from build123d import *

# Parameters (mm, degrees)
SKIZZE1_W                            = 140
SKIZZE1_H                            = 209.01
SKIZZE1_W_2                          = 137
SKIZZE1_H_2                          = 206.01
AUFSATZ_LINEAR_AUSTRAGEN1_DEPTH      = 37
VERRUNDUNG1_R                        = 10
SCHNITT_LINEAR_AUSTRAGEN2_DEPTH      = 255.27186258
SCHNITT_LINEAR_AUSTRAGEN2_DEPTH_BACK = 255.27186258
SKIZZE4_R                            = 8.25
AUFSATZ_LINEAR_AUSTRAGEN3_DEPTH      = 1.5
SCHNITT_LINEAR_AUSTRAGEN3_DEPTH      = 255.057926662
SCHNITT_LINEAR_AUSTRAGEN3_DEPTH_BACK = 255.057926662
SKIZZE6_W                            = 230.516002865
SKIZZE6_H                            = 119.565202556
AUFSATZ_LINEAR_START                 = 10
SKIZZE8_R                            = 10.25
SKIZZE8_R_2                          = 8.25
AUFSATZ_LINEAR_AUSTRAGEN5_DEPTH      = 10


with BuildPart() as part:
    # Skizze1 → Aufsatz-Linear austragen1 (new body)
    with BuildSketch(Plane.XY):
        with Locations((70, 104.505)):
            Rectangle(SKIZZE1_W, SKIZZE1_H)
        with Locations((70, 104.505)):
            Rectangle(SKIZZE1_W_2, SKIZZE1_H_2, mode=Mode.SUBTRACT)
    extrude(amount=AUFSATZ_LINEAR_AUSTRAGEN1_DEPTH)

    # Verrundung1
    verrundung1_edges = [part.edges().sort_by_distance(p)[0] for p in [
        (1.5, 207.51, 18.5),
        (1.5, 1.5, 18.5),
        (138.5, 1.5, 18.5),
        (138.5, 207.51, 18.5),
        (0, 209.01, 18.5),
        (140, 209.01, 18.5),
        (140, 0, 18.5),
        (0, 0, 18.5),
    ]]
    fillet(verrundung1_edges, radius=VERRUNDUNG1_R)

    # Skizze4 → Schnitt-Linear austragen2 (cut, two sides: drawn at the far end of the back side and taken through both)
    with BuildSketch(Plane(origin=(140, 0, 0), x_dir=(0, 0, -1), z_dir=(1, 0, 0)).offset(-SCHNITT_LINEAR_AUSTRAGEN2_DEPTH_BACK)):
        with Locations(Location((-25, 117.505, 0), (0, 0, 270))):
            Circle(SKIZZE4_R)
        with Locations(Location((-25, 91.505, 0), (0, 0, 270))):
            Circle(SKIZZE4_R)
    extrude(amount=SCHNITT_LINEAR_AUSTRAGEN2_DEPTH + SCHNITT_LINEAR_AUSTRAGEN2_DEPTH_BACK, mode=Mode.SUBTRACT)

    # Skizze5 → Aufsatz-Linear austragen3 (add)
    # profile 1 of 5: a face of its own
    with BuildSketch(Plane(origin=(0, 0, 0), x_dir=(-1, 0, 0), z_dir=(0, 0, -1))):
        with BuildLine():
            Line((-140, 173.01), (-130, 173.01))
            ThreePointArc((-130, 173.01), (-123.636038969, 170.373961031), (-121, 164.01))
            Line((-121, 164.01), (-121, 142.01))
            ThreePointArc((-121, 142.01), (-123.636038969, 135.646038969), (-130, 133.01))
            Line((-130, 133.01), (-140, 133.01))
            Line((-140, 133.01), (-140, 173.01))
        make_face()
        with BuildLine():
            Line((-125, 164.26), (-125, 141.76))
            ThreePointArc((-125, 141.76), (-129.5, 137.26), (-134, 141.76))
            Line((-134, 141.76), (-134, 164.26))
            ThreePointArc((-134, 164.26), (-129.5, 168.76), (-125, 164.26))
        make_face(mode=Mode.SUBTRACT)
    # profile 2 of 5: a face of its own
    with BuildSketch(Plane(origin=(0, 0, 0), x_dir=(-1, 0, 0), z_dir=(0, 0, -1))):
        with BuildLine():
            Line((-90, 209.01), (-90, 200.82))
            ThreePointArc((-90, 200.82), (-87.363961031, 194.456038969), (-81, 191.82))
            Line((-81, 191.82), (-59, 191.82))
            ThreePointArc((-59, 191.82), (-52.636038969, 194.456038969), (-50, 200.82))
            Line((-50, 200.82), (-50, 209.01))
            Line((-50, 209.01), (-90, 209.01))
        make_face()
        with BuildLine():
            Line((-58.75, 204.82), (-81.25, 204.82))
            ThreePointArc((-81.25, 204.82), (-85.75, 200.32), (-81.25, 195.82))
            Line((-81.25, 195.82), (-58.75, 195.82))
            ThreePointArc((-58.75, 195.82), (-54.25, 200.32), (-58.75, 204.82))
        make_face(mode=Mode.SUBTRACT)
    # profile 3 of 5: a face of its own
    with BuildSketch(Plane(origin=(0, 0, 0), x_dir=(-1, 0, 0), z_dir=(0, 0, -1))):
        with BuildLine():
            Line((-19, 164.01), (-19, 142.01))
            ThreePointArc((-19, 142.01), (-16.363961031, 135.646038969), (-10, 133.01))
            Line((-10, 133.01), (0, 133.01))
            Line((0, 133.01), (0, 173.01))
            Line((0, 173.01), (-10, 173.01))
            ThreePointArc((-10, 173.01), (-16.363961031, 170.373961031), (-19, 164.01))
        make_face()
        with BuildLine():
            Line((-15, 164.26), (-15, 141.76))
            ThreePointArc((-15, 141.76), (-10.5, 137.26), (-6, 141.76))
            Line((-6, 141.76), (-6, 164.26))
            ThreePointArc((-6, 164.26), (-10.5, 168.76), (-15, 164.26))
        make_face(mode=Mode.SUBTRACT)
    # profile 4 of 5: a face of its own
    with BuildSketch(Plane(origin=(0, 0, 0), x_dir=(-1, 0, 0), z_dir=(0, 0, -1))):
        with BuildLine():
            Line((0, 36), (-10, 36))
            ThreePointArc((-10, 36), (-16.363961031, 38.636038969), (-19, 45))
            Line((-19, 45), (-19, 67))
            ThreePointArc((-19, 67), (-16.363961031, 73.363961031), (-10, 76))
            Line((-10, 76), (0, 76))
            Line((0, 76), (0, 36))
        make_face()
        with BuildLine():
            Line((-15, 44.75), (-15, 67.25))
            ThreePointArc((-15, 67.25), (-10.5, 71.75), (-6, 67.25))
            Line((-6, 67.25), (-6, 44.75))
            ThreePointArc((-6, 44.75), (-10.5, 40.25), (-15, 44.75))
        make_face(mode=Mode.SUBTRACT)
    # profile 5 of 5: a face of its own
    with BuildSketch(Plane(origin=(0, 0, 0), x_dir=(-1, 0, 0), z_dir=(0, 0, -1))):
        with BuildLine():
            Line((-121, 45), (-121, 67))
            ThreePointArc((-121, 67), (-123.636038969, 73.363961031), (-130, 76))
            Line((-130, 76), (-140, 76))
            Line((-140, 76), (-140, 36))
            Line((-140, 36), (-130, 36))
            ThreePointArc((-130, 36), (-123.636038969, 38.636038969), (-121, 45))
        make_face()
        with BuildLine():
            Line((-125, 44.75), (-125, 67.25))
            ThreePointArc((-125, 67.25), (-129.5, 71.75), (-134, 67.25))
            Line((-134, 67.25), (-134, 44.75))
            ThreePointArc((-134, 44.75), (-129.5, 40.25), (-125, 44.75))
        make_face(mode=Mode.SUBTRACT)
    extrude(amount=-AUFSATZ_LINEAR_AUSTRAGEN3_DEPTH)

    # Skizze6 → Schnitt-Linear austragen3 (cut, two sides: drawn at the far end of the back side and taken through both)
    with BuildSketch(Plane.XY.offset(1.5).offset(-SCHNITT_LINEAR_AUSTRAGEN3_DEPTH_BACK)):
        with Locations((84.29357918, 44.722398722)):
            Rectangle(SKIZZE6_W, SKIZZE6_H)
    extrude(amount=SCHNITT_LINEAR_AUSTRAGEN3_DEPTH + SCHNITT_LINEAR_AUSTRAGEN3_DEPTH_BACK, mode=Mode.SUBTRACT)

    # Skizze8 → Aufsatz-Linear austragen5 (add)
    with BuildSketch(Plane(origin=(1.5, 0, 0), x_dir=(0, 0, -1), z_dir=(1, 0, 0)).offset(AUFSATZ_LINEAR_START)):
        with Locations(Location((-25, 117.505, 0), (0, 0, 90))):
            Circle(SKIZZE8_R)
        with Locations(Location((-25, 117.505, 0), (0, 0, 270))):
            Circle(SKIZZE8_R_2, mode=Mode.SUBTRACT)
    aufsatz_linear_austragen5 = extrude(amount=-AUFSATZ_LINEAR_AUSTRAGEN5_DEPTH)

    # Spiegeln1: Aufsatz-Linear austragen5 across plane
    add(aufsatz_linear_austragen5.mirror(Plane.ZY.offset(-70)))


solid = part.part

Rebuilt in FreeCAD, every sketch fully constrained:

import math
import FreeCAD as App
import Part
import Sketcher
from FreeCAD import Vector


def edges_at(feature, points):
    """Names of the edges that pass closest to the given points."""
    edges = feature.Shape.Edges
    near = lambda p: min(range(len(edges)), key=lambda i: edges[i].distToShape(Part.Vertex(*p))[0])
    return sorted({f"Edge{near(p) + 1}" for p in points})


def add_polygon(sketch, points):
    """Adds a closed chain of lines whose ends are joined by coincident constraints."""
    first, n = sketch.GeometryCount, len(points)
    for a, b in zip(points, points[1:] + points[:1]):
        sketch.addGeometry(Part.LineSegment(App.Vector(*a, 0), App.Vector(*b, 0)), False)
    for i in range(n):
        sketch.addConstraint(Sketcher.Constraint("Coincident", first + i, 2, first + (i + 1) % n, 1))

doc = App.newDocument("Part")
body = doc.addObject("PartDesign::Body", "Body")

sketch1 = body.newObject("Sketcher::SketchObject", "Sketch")
sketch1.AttachmentSupport = (doc.getObject("XY_Plane"), [""])
sketch1.MapMode = "FlatFace"
add_polygon(sketch1, [(0, 209), (0, 0), (140, 0), (140, 209)])
add_polygon(sketch1, [(138, 2), (2, 2), (2, 208), (138, 208)])
sketch1.addConstraint([
    Sketcher.Constraint("Vertical", 0),
    Sketcher.Constraint("Horizontal", 1),
    Sketcher.Constraint("Vertical", 2),
    Sketcher.Constraint("Horizontal", 3),
    Sketcher.Constraint("Horizontal", 4),
    Sketcher.Constraint("Vertical", 5),
    Sketcher.Constraint("Horizontal", 6),
    Sketcher.Constraint("Vertical", 7),
    Sketcher.Constraint("Coincident", 0, 2, -1, 1),
    Sketcher.Constraint("DistanceX", 1, 1, 1, 2, 140.0),
    Sketcher.Constraint("DistanceX", 4, 2, 4, 1, 137.0),
    Sketcher.Constraint("DistanceY", 0, 2, 0, 1, 209.01),
    Sketcher.Constraint("DistanceY", 5, 1, 5, 2, 206.01),
    Sketcher.Constraint("DistanceX", -1, 1, 4, 2, 1.5),
    Sketcher.Constraint("DistanceY", -1, 1, 4, 2, 1.5),
])
pad1 = body.newObject("PartDesign::Pad", "Pad")
pad1.Profile = sketch1
pad1.Length = 37
doc.recompute()

fillet = body.newObject("PartDesign::Fillet", "Fillet")
fillet.Base = (pad1, edges_at(pad1, [
    (1.5, 207.51, 18.5),
    (1.5, 1.5, 18.5),
    (138.5, 1.5, 18.5),
    (138.5, 207.51, 18.5),
    (0, 209.01, 18.5),
    (140, 209.01, 18.5),
    (140, 0, 18.5),
    (0, 0, 18.5),
]))
fillet.Radius = 10

sketch2 = body.newObject("Sketcher::SketchObject", "Sketch001")
sketch2.AttachmentSupport = (doc.getObject("YZ_Plane"), [""])
sketch2.MapMode = "FlatFace"
sketch2.AttachmentOffset = App.Placement(Vector(0, 0, 140), App.Rotation())
sketch2.addGeometry([
    Part.Circle(Vector(118, 25, 0), Vector(0, 0, 1), 8),
    Part.Circle(Vector(92, 25, 0), Vector(0, 0, 1), 8),
], False)
sketch2.addConstraint([
    Sketcher.Constraint("Equal", 0, 1),
    Sketcher.Constraint("Horizontal", 0, 3, 1, 3),
    Sketcher.Constraint("Diameter", 0, 16.5),
    Sketcher.Constraint("DistanceY", -1, 1, 0, 3, 25.0),
    Sketcher.Constraint("DistanceX", 1, 3, 0, 3, 26.0),
    Sketcher.Constraint("DistanceX", -1, 1, 0, 3, 117.505),
])
pocket1 = body.newObject("PartDesign::Pocket", "Pocket")
pocket1.Profile = sketch2
pocket1.Type = "ThroughAll"
pocket1.Midplane = True

sketch3 = body.newObject("Sketcher::SketchObject", "Sketch002")
sketch3.AttachmentSupport = (doc.getObject("XY_Plane"), [""])
sketch3.MapMode = "FlatFace"
sketch3.addGeometry([
    Part.LineSegment(Vector(130, 173, 0), Vector(140, 173, 0)),
    Part.LineSegment(Vector(140, 173, 0), Vector(140, 133, 0)),
    Part.LineSegment(Vector(140, 133, 0), Vector(130, 133, 0)),
    Part.ArcOfCircle(Part.Circle(Vector(130, 142, 0), Vector(0, 0, 1), 9), math.radians(180), math.radians(270)),
    Part.LineSegment(Vector(121, 142, 0), Vector(121, 164, 0)),
    Part.ArcOfCircle(Part.Circle(Vector(130, 164, 0), Vector(0, 0, 1), 9), math.radians(90), math.radians(180)),
    Part.LineSegment(Vector(125, 164.3, 0), Vector(125, 141.8, 0)),
    Part.ArcOfCircle(Part.Circle(Vector(129.5, 141.8, 0), Vector(0, 0, 1), 4.5), math.radians(180), math.radians(360)),
    Part.LineSegment(Vector(134, 141.8, 0), Vector(134, 164.3, 0)),
    Part.ArcOfCircle(Part.Circle(Vector(129.5, 164.3, 0), Vector(0, 0, 1), 4.5), math.radians(0), math.radians(180)),
    Part.LineSegment(Vector(90, 209, 0), Vector(90, 200.8, 0)),
    Part.ArcOfCircle(Part.Circle(Vector(81, 200.8, 0), Vector(0, 0, 1), 9), math.radians(-90), math.radians(0)),
    Part.LineSegment(Vector(81, 191.8, 0), Vector(59, 191.8, 0)),
    Part.ArcOfCircle(Part.Circle(Vector(59, 200.8, 0), Vector(0, 0, 1), 9), math.radians(180), math.radians(270)),
    Part.LineSegment(Vector(50, 200.8, 0), Vector(50, 209, 0)),
    Part.LineSegment(Vector(50, 209, 0), Vector(90, 209, 0)),
    Part.LineSegment(Vector(81.2, 204.8, 0), Vector(58.8, 204.8, 0)),
    Part.ArcOfCircle(Part.Circle(Vector(58.8, 200.3, 0), Vector(0, 0, 1), 4.5), math.radians(90), math.radians(270)),
    Part.LineSegment(Vector(58.8, 195.8, 0), Vector(81.2, 195.8, 0)),
    Part.ArcOfCircle(Part.Circle(Vector(81.2, 200.3, 0), Vector(0, 0, 1), 4.5), math.radians(-90), math.radians(90)),
    Part.LineSegment(Vector(19, 164, 0), Vector(19, 142, 0)),
    Part.ArcOfCircle(Part.Circle(Vector(10, 142, 0), Vector(0, 0, 1), 9), math.radians(-90), math.radians(0)),
    Part.LineSegment(Vector(10, 133, 0), Vector(0, 133, 0)),
    Part.LineSegment(Vector(0, 133, 0), Vector(0, 173, 0)),
    Part.LineSegment(Vector(0, 173, 0), Vector(10, 173, 0)),
    Part.ArcOfCircle(Part.Circle(Vector(10, 164, 0), Vector(0, 0, 1), 9), math.radians(0), math.radians(90)),
    Part.LineSegment(Vector(15, 141.8, 0), Vector(15, 164.3, 0)),
    Part.ArcOfCircle(Part.Circle(Vector(10.5, 164.3, 0), Vector(0, 0, 1), 4.5), math.radians(0), math.radians(180)),
    Part.LineSegment(Vector(6, 164.3, 0), Vector(6, 141.8, 0)),
    Part.ArcOfCircle(Part.Circle(Vector(10.5, 141.8, 0), Vector(0, 0, 1), 4.5), math.radians(180), math.radians(360)),
    Part.LineSegment(Vector(10, 36, 0), Vector(0, 36, 0)),
    Part.LineSegment(Vector(0, 36, 0), Vector(0, 76, 0)),
    Part.LineSegment(Vector(0, 76, 0), Vector(10, 76, 0)),
    Part.ArcOfCircle(Part.Circle(Vector(10, 67, 0), Vector(0, 0, 1), 9), math.radians(0), math.radians(90)),
    Part.LineSegment(Vector(19, 67, 0), Vector(19, 45, 0)),
    Part.ArcOfCircle(Part.Circle(Vector(10, 45, 0), Vector(0, 0, 1), 9), math.radians(-90), math.radians(0)),
    Part.LineSegment(Vector(15, 44.8, 0), Vector(15, 67.2, 0)),
    Part.ArcOfCircle(Part.Circle(Vector(10.5, 67.2, 0), Vector(0, 0, 1), 4.5), math.radians(0), math.radians(180)),
    Part.LineSegment(Vector(6, 67.2, 0), Vector(6, 44.8, 0)),
    Part.ArcOfCircle(Part.Circle(Vector(10.5, 44.8, 0), Vector(0, 0, 1), 4.5), math.radians(180), math.radians(360)),
    Part.LineSegment(Vector(121, 45, 0), Vector(121, 67, 0)),
    Part.ArcOfCircle(Part.Circle(Vector(130, 67, 0), Vector(0, 0, 1), 9), math.radians(90), math.radians(180)),
    Part.LineSegment(Vector(130, 76, 0), Vector(140, 76, 0)),
    Part.LineSegment(Vector(140, 76, 0), Vector(140, 36, 0)),
    Part.LineSegment(Vector(140, 36, 0), Vector(130, 36, 0)),
    Part.ArcOfCircle(Part.Circle(Vector(130, 45, 0), Vector(0, 0, 1), 9), math.radians(180), math.radians(270)),
    Part.LineSegment(Vector(125, 67.2, 0), Vector(125, 44.8, 0)),
    Part.ArcOfCircle(Part.Circle(Vector(129.5, 44.8, 0), Vector(0, 0, 1), 4.5), math.radians(180), math.radians(360)),
    Part.LineSegment(Vector(134, 44.8, 0), Vector(134, 67.2, 0)),
    Part.ArcOfCircle(Part.Circle(Vector(129.5, 67.2, 0), Vector(0, 0, 1), 4.5), math.radians(0), math.radians(180)),
], False)
sketch3.addConstraint([
    Sketcher.Constraint("Coincident", 0, 2, 1, 1),
    Sketcher.Constraint("Coincident", 1, 2, 2, 1),
    Sketcher.Constraint("Tangent", 2, 2, 3, 2),
    Sketcher.Constraint("Tangent", 3, 1, 4, 1),
    Sketcher.Constraint("Tangent", 4, 2, 5, 2),
    Sketcher.Constraint("Tangent", 5, 1, 0, 1),
    Sketcher.Constraint("Tangent", 6, 2, 7, 1),
    Sketcher.Constraint("Tangent", 7, 2, 8, 1),
    Sketcher.Constraint("Tangent", 8, 2, 9, 1),
    Sketcher.Constraint("Tangent", 9, 2, 6, 1),
    Sketcher.Constraint("Tangent", 10, 2, 11, 2),
    Sketcher.Constraint("Tangent", 11, 1, 12, 1),
    Sketcher.Constraint("Tangent", 12, 2, 13, 2),
    Sketcher.Constraint("Tangent", 13, 1, 14, 1),
    Sketcher.Constraint("Coincident", 14, 2, 15, 1),
    Sketcher.Constraint("Coincident", 15, 2, 10, 1),
    Sketcher.Constraint("Tangent", 16, 2, 17, 1),
    Sketcher.Constraint("Tangent", 17, 2, 18, 1),
    Sketcher.Constraint("Tangent", 18, 2, 19, 1),
    Sketcher.Constraint("Tangent", 19, 2, 16, 1),
    Sketcher.Constraint("Tangent", 20, 2, 21, 2),
    Sketcher.Constraint("Tangent", 21, 1, 22, 1),
    Sketcher.Constraint("Coincident", 22, 2, 23, 1),
    Sketcher.Constraint("Coincident", 23, 2, 24, 1),
    Sketcher.Constraint("Tangent", 24, 2, 25, 2),
    Sketcher.Constraint("Tangent", 25, 1, 20, 1),
    Sketcher.Constraint("Tangent", 26, 2, 27, 1),
    Sketcher.Constraint("Tangent", 27, 2, 28, 1),
    Sketcher.Constraint("Tangent", 28, 2, 29, 1),
    Sketcher.Constraint("Tangent", 29, 2, 26, 1),
    Sketcher.Constraint("Coincident", 30, 2, 31, 1),
    Sketcher.Constraint("Coincident", 31, 2, 32, 1),
    Sketcher.Constraint("Tangent", 32, 2, 33, 2),
    Sketcher.Constraint("Tangent", 33, 1, 34, 1),
    Sketcher.Constraint("Tangent", 34, 2, 35, 2),
    Sketcher.Constraint("Tangent", 35, 1, 30, 1),
    Sketcher.Constraint("Tangent", 36, 2, 37, 1),
    Sketcher.Constraint("Tangent", 37, 2, 38, 1),
    Sketcher.Constraint("Tangent", 38, 2, 39, 1),
    Sketcher.Constraint("Tangent", 39, 2, 36, 1),
    Sketcher.Constraint("Tangent", 40, 2, 41, 2),
    Sketcher.Constraint("Tangent", 41, 1, 42, 1),
    Sketcher.Constraint("Coincident", 42, 2, 43, 1),
    Sketcher.Constraint("Coincident", 43, 2, 44, 1),
    Sketcher.Constraint("Tangent", 44, 2, 45, 2),
    Sketcher.Constraint("Tangent", 45, 1, 40, 1),
    Sketcher.Constraint("Tangent", 46, 2, 47, 1),
    Sketcher.Constraint("Tangent", 47, 2, 48, 1),
    Sketcher.Constraint("Tangent", 48, 2, 49, 1),
    Sketcher.Constraint("Tangent", 49, 2, 46, 1),
    Sketcher.Constraint("Horizontal", 0),
    Sketcher.Constraint("Vertical", 1),
    Sketcher.Constraint("Horizontal", 2),
    Sketcher.Constraint("Vertical", 4),
    Sketcher.Constraint("Vertical", 6),
    Sketcher.Constraint("Vertical", 8),
    Sketcher.Constraint("Vertical", 10),
    Sketcher.Constraint("Horizontal", 12),
    Sketcher.Constraint("Vertical", 14),
    Sketcher.Constraint("Horizontal", 15),
    Sketcher.Constraint("Horizontal", 16),
    Sketcher.Constraint("Horizontal", 18),
    Sketcher.Constraint("Vertical", 20),
    Sketcher.Constraint("Horizontal", 22),
    Sketcher.Constraint("Vertical", 23),
    Sketcher.Constraint("Horizontal", 24),
    Sketcher.Constraint("Vertical", 26),
    Sketcher.Constraint("Vertical", 28),
    Sketcher.Constraint("Horizontal", 30),
    Sketcher.Constraint("Vertical", 31),
    Sketcher.Constraint("Horizontal", 32),
    Sketcher.Constraint("Vertical", 34),
    Sketcher.Constraint("Vertical", 36),
    Sketcher.Constraint("Vertical", 38),
    Sketcher.Constraint("Vertical", 40),
    Sketcher.Constraint("Horizontal", 42),
    Sketcher.Constraint("Vertical", 43),
    Sketcher.Constraint("Horizontal", 44),
    Sketcher.Constraint("Vertical", 46),
    Sketcher.Constraint("Vertical", 48),
    Sketcher.Constraint("Equal", 3, 5),
    Sketcher.Constraint("Equal", 5, 11),
    Sketcher.Constraint("Equal", 11, 13),
    Sketcher.Constraint("Equal", 9, 17),
    Sketcher.Constraint("Equal", 13, 21),
    Sketcher.Constraint("Equal", 21, 25),
    Sketcher.Constraint("Equal", 19, 27),
    Sketcher.Constraint("Equal", 25, 33),
    Sketcher.Constraint("Equal", 33, 35),
    Sketcher.Constraint("Equal", 29, 37),
    Sketcher.Constraint("Equal", 35, 41),
    Sketcher.Constraint("Equal", 41, 45),
    Sketcher.Constraint("Equal", 39, 47),
    Sketcher.Constraint("PointOnObject", 22, 2, -2),
    Sketcher.Constraint("PointOnObject", 30, 2, -2),
    Sketcher.Constraint("Horizontal", 3, 3, 21, 3),
    Sketcher.Constraint("Horizontal", 5, 3, 25, 3),
    Sketcher.Constraint("Horizontal", 9, 3, 27, 3),
    Sketcher.Constraint("Horizontal", 7, 3, 29, 3),
    Sketcher.Constraint("Horizontal", 33, 3, 41, 3),
    Sketcher.Constraint("Horizontal", 35, 3, 45, 3),
    Sketcher.Constraint("Horizontal", 39, 3, 47, 3),
    Sketcher.Constraint("Horizontal", 37, 3, 49, 3),
    Sketcher.Constraint("Vertical", 25, 3, 33, 3),
    Sketcher.Constraint("Vertical", 29, 3, 37, 3),
    Sketcher.Constraint("Vertical", 5, 3, 41, 3),
    Sketcher.Constraint("Vertical", 9, 3, 47, 3),
    Sketcher.Constraint("Vertical", 1, 2, 42, 2),
    Sketcher.Constraint("Equal", 2, 22),
    Sketcher.Constraint("Equal", 15, 1),
    Sketcher.Constraint("Equal", 18, 6),
    Sketcher.Constraint("Equal", 23, 31),
    Sketcher.Constraint("Equal", 28, 36),
    Sketcher.Constraint("Radius", 3, 9.0),
    Sketcher.Constraint("Radius", 7, 4.5),
    Sketcher.Constraint("DistanceX", 0, 1, 0, 2, 10.0),
    Sketcher.Constraint("DistanceX", 12, 2, 12, 1, 22.0),
    Sketcher.Constraint("DistanceX", 16, 2, 16, 1, 22.5),
    Sketcher.Constraint("DistanceX", -1, 1, 3, 3, 130.0),
    Sketcher.Constraint("DistanceX", -1, 1, 11, 3, 81.0),
    Sketcher.Constraint("DistanceY", -1, 1, 33, 3, 67.0),
    Sketcher.Constraint("DistanceX", -1, 1, 6, 2, 125.0),
    Sketcher.Constraint("DistanceX", -1, 1, 26, 2, 15.0),
    Sketcher.Constraint("DistanceY", 10, 2, 10, 1, 8.19),
    Sketcher.Constraint("DistanceY", -1, 1, 3, 3, 142.01),
    Sketcher.Constraint("DistanceY", -1, 1, 7, 3, 141.76),
    Sketcher.Constraint("DistanceY", -1, 1, 11, 3, 200.82),
    Sketcher.Constraint("DistanceX", -1, 1, 17, 3, 58.75),
    Sketcher.Constraint("DistanceY", -1, 1, 17, 3, 200.32),
    Sketcher.Constraint("DistanceY", -1, 1, 37, 3, 67.25),
])
pad2 = body.newObject("PartDesign::Pad", "Pad001")
pad2.Profile = sketch3
pad2.Length = 1.5

sketch4 = body.newObject("Sketcher::SketchObject", "Sketch003")
sketch4.AttachmentSupport = (doc.getObject("XY_Plane"), [""])
sketch4.MapMode = "FlatFace"
sketch4.AttachmentOffset = App.Placement(Vector(0, 0, 1.5), App.Rotation())
add_polygon(sketch4, [(-31, 105), (-31, -15), (200, -15), (200, 105)])
sketch4.addConstraint([
    Sketcher.Constraint("Vertical", 0),
    Sketcher.Constraint("Horizontal", 1),
    Sketcher.Constraint("Vertical", 2),
    Sketcher.Constraint("Horizontal", 3),
    Sketcher.Constraint("DistanceY", -1, 1, 2, 2, 104.505),
    Sketcher.Constraint("DistanceX", 1, 1, 1, 2, 230.516003),
    Sketcher.Constraint("DistanceY", 0, 2, 0, 1, 119.565203),
    Sketcher.Constraint("DistanceX", -1, 1, 1, 2, 199.551581),
])
pocket2 = body.newObject("PartDesign::Pocket", "Pocket001")
pocket2.Profile = sketch4
pocket2.Type = "ThroughAll"
pocket2.Midplane = True

sketch5 = body.newObject("Sketcher::SketchObject", "Sketch004")
sketch5.AttachmentSupport = (doc.getObject("YZ_Plane"), [""])
sketch5.MapMode = "FlatFace"
sketch5.AttachmentOffset = App.Placement(Vector(0, 0, 11.5), App.Rotation())
sketch5.addGeometry([
    Part.Circle(Vector(118, 25, 0), Vector(0, 0, 1), 10),
    Part.Circle(Vector(118, 25, 0), Vector(0, 0, 1), 8),
], False)
sketch5.addConstraint([
    Sketcher.Constraint("Coincident", 1, 3, 0, 3),
    Sketcher.Constraint("Diameter", 0, 20.5),
    Sketcher.Constraint("Diameter", 1, 16.5),
    Sketcher.Constraint("DistanceY", -1, 1, 0, 3, 25.0),
    Sketcher.Constraint("DistanceX", -1, 1, 0, 3, 117.505),
])
pad3 = body.newObject("PartDesign::Pad", "Pad002")
pad3.Profile = sketch5
pad3.Length = 10
pad3.Reversed = True
doc.recompute()

datumplane = body.newObject("PartDesign::Plane", "DatumPlane")
datumplane.AttachmentSupport = (doc.getObject("YZ_Plane"), [""])
datumplane.MapMode = "FlatFace"
datumplane.AttachmentOffset = App.Placement(Vector(0, 0, 70), App.Rotation())
mirrored = body.newObject("PartDesign::Mirrored", "Mirrored")
mirrored.Originals = [pad3]
mirrored.MirrorPlane = (datumplane, [""])
body.Tip = mirrored

doc.recompute()
